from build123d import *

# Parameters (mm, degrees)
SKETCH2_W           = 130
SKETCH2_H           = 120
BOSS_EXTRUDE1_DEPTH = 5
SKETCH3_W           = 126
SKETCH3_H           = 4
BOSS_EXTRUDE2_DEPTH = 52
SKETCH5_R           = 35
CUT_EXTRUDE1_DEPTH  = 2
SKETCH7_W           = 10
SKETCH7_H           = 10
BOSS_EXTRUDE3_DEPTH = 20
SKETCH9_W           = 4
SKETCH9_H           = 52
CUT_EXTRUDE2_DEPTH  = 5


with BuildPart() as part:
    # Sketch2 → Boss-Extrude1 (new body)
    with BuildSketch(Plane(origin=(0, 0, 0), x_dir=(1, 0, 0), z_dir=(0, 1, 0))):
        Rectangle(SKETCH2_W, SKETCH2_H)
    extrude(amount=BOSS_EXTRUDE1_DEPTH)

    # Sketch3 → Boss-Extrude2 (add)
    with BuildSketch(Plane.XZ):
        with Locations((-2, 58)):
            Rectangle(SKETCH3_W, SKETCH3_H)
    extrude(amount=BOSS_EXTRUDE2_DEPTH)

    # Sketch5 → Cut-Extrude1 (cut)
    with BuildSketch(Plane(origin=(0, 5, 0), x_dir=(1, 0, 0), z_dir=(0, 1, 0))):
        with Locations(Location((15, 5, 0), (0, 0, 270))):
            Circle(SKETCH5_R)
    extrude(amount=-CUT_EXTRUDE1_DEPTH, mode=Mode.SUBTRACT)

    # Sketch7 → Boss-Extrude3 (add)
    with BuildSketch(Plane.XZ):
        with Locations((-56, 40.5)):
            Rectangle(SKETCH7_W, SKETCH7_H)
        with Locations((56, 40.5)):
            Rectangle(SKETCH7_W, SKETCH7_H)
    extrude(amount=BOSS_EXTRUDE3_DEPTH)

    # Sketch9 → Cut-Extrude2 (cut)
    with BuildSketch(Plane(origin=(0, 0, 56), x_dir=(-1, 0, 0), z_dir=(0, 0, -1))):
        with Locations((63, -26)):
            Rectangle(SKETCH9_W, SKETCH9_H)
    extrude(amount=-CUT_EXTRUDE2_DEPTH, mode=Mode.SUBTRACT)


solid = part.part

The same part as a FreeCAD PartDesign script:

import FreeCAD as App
import Part
import Sketcher
from FreeCAD import Vector
Q = App.Units.Quantity


def add_polygon(sketch, points):
    """Adds a closed chain of lines whose ends are joined by coincident constraints."""
    first, n = sketch.GeometryCount, len(points)
    for a, b in zip(points, points[1:] + points[:1]):
        sketch.addGeometry(Part.LineSegment(App.Vector(*a, 0), App.Vector(*b, 0)), False)
    for i in range(n):
        sketch.addConstraint(Sketcher.Constraint("Coincident", first + i, 2, first + (i + 1) % n, 1))

doc = App.newDocument("Part")
body = doc.addObject("PartDesign::Body", "Body")

# Sketch on XZ plane
sketch1 = body.newObject("Sketcher::SketchObject", "Sketch")
sketch1.AttachmentSupport = (doc.getObject("XZ_Plane"), [""])
sketch1.MapMode = "FlatFace"
add_polygon(sketch1, [(-65, -60), (-65, 60), (65, 60), (65, -60)])  # lines 0-3
sketch1.addConstraint([
    Sketcher.Constraint("Vertical", 0),
    Sketcher.Constraint("Horizontal", 1),
    Sketcher.Constraint("Vertical", 2),
    Sketcher.Constraint("Horizontal", 3),
    Sketcher.Constraint("Symmetric", 0, 2, 2, 2, -1, 1),
    Sketcher.Constraint("DistanceX", 1, 1, 1, 2, Q("130 mm")),
    Sketcher.Constraint("DistanceY", 0, 1, 0, 2, Q("120 mm")),
])
pad1 = body.newObject("PartDesign::Pad", "Pad")
pad1.Profile = sketch1
pad1.Length = 5
pad1.Reversed = True

# Sketch on XZ plane
sketch2 = body.newObject("Sketcher::SketchObject", "Sketch001")
sketch2.AttachmentSupport = (doc.getObject("XZ_Plane"), [""])
sketch2.MapMode = "FlatFace"
add_polygon(sketch2, [(-65, 60), (-65, 56), (61, 56), (61, 60)])  # lines 0-3
sketch2.addConstraint([
    Sketcher.Constraint("Vertical", 0),
    Sketcher.Constraint("Horizontal", 1),
    Sketcher.Constraint("Vertical", 2),
    Sketcher.Constraint("Horizontal", 3),
    Sketcher.Constraint("DistanceX", 1, 1, 1, 2, Q("126 mm")),
    Sketcher.Constraint("DistanceY", 0, 2, 0, 1, Q("4 mm")),
    Sketcher.Constraint("DistanceX", 0, 2, -1, 1, Q("65 mm")),
    Sketcher.Constraint("DistanceY", -1, 1, 0, 2, Q("56 mm")),
])
pad2 = body.newObject("PartDesign::Pad", "Pad001")
pad2.Profile = sketch2
pad2.Length = 52

# Sketch on XZ plane
sketch3 = body.newObject("Sketcher::SketchObject", "Sketch002")
sketch3.AttachmentSupport = (doc.getObject("XZ_Plane"), [""])
sketch3.MapMode = "FlatFace"
sketch3.AttachmentOffset = App.Placement(Vector(0, 0, -5), App.Rotation())
sketch3.addGeometry(Part.Circle(Vector(15, -5, 0), Vector(0, 0, 1), 35), False)
sketch3.addConstraint([
    Sketcher.Constraint("Diameter", 0, Q("70 mm")),
    Sketcher.Constraint("DistanceX", -1, 1, 0, 3, Q("15 mm")),
    Sketcher.Constraint("DistanceY", 0, 3, -1, 1, Q("5 mm")),
])
pocket1 = body.newObject("PartDesign::Pocket", "Pocket")
pocket1.Profile = sketch3
pocket1.Length = 2
pocket1.Reversed = True

# Sketch on XZ plane
sketch4 = body.newObject("Sketcher::SketchObject", "Sketch003")
sketch4.AttachmentSupport = (doc.getObject("XZ_Plane"), [""])
sketch4.MapMode = "FlatFace"
add_polygon(sketch4, [(-61, 46), (-61, 36), (-51, 36), (-51, 46)])  # lines 0-3
add_polygon(sketch4, [(51, 46), (51, 36), (61, 36), (61, 46)])  # lines 4-7
sketch4.addConstraint([
    Sketcher.Constraint("Vertical", 0),
    Sketcher.Constraint("Horizontal", 1),
    Sketcher.Constraint("Vertical", 2),
    Sketcher.Constraint("Horizontal", 3),
    Sketcher.Constraint("Vertical", 4),
    Sketcher.Constraint("Horizontal", 5),
    Sketcher.Constraint("Vertical", 6),
    Sketcher.Constraint("Horizontal", 7),
    Sketcher.Constraint("Symmetric", 1, 2, 4, 2, -2),
    Sketcher.Constraint("Symmetric", 3, 2, 6, 2, -2),
    Sketcher.Constraint("Equal", 7, 0),
    Sketcher.Constraint("DistanceX", 1, 1, 1, 2, Q("10 mm")),
    Sketcher.Constraint("DistanceX", 0, 2, -1, 1, Q("61 mm")),
    Sketcher.Constraint("DistanceY", -1, 1, 0, 2, Q("35.5 mm")),
])
pad3 = body.newObject("PartDesign::Pad", "Pad002")
pad3.Profile = sketch4
pad3.Length = 20

# Sketch on XY plane
sketch5 = body.newObject("Sketcher::SketchObject", "Sketch004")
sketch5.AttachmentSupport = (doc.getObject("XY_Plane"), [""])
sketch5.MapMode = "FlatFace"
sketch5.AttachmentOffset = App.Placement(Vector(0, 0, 56), App.Rotation())
add_polygon(sketch5, [(-61, 0), (-61, -52), (-65, -52), (-65, 0)])  # lines 0-3
sketch5.addConstraint([
    Sketcher.Constraint("Vertical", 0),
    Sketcher.Constraint("Horizontal", 1),
    Sketcher.Constraint("Vertical", 2),
    Sketcher.Constraint("Horizontal", 3),
    Sketcher.Constraint("PointOnObject", 2, 2, -1),
    Sketcher.Constraint("DistanceX", 1, 2, 1, 1, Q("4 mm")),
    Sketcher.Constraint("DistanceY", 0, 2, 0, 1, Q("52 mm")),
    Sketcher.Constraint("DistanceX", 0, 2, -1, 1, Q("61 mm")),
])
pocket2 = body.newObject("PartDesign::Pocket", "Pocket001")
pocket2.Profile = sketch5
pocket2.Length = 5
pocket2.Reversed = True

doc.recompute()
